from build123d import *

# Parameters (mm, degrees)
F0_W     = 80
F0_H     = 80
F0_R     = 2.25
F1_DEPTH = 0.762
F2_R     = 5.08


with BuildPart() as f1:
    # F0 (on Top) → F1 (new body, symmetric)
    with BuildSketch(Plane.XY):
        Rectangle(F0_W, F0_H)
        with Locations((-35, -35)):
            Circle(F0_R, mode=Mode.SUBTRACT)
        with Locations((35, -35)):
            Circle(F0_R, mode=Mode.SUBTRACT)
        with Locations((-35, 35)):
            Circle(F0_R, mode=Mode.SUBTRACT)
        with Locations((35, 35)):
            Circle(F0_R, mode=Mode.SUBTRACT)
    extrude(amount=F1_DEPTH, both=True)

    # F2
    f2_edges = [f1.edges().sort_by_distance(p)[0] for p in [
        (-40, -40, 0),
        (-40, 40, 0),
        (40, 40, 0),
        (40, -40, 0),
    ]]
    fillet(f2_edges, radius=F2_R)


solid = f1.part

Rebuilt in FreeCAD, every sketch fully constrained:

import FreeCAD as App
import Part
import Sketcher

V = App.Vector
Q = App.Units.Quantity


def edges_at(feature, points):
    """Names of the edges that pass closest to the given points."""
    edges = feature.Shape.Edges
    near = lambda p: min(range(len(edges)), key=lambda i: edges[i].distToShape(Part.Vertex(*p))[0])
    return sorted({f"Edge{near(p) + 1}" for p in points})


def add_polygon(sketch, points):
    """Adds a closed chain of lines whose ends are joined by coincident constraints."""
    first, n = sketch.GeometryCount, len(points)
    for a, b in zip(points, points[1:] + points[:1]):
        sketch.addGeometry(Part.LineSegment(App.Vector(*a, 0), App.Vector(*b, 0)), False)
    for i in range(n):
        sketch.addConstraint(Sketcher.Constraint("Coincident", first + i, 2, first + (i + 1) % n, 1))

doc = App.newDocument("Part")
params = doc.addObject("Spreadsheet::Sheet", "Params")
for row, (alias, value) in enumerate([
    ("sketch1_diameter", "4.5 mm"),
    ("sketch1_width", "80 mm"),
    ("pad1_length", "1.524 mm"),
    ("fillet_radius", "5.08 mm"),
], start=1):
    params.set(f"A{row}", alias)
    params.set(f"B{row}", "=" + value)
    params.setAlias(f"B{row}", alias)

body = doc.addObject("PartDesign::Body", "Body")

# Sketch on XY plane
sketch1 = body.newObject("Sketcher::SketchObject", "Sketch")
sketch1.AttachmentSupport = (doc.getObject("XY_Plane"), [""])
sketch1.MapMode = "FlatFace"
add_polygon(sketch1, [(-40, 40), (-40, -40), (40, -40), (40, 40)])  # lines 0-3
sketch1.addGeometry(Part.Circle(V(-35, -35, 0), V(0, 0, 1), 2.2), False)  # 4
sketch1.addGeometry(Part.Circle(V(35, -35, 0), V(0, 0, 1), 2.2), False)  # 5
sketch1.addGeometry(Part.Circle(V(-35, 35, 0), V(0, 0, 1), 2.2), False)  # 6
sketch1.addGeometry(Part.Circle(V(35, 35, 0), V(0, 0, 1), 2.2), False)  # 7
sketch1.addConstraint([
    Sketcher.Constraint("Vertical", 0),
    Sketcher.Constraint("Horizontal", 1),
    Sketcher.Constraint("Vertical", 2),
    Sketcher.Constraint("Horizontal", 3),
    Sketcher.Constraint("Equal", 4, 5),
    Sketcher.Constraint("Equal", 5, 6),
    Sketcher.Constraint("Equal", 6, 7),
    Sketcher.Constraint("Symmetric", 5, 3, 6, 3, -1, 1),
    Sketcher.Constraint("Symmetric", 4, 3, 7, 3, -1, 1),
    Sketcher.Constraint("Symmetric", 0, 2, 2, 2, -1, 1),
    Sketcher.Constraint("Symmetric", 4, 3, 5, 3, -2),
    Sketcher.Constraint("Equal", 3, 0),
    Sketcher.Constraint("Diameter", 4, Q("4.5 mm")),
    Sketcher.Constraint("DistanceX", 1, 1, 1, 2, Q("80 mm")),
    Sketcher.Constraint("DistanceX", 4, 3, -1, 1, Q("35 mm")),
    Sketcher.Constraint("DistanceY", 4, 3, -1, 1, Q("35 mm")),
])
sketch1.setExpression("Constraints[16]", "Params.sketch1_diameter")
sketch1.setExpression("Constraints[17]", "Params.sketch1_width")
pad1 = body.newObject("PartDesign::Pad", "Pad")
pad1.Profile = sketch1
pad1.setExpression("Length", "Params.pad1_length")
pad1.Midplane = True
doc.recompute()

fillet = body.newObject("PartDesign::Fillet", "Fillet")
fillet.Base = (pad1, edges_at(pad1, [
    (-40, -40, 0),
    (-40, 40, 0),
    (40, 40, 0),
    (40, -40, 0),
]))
fillet.setExpression("Radius", "Params.fillet_radius")

doc.recompute()
